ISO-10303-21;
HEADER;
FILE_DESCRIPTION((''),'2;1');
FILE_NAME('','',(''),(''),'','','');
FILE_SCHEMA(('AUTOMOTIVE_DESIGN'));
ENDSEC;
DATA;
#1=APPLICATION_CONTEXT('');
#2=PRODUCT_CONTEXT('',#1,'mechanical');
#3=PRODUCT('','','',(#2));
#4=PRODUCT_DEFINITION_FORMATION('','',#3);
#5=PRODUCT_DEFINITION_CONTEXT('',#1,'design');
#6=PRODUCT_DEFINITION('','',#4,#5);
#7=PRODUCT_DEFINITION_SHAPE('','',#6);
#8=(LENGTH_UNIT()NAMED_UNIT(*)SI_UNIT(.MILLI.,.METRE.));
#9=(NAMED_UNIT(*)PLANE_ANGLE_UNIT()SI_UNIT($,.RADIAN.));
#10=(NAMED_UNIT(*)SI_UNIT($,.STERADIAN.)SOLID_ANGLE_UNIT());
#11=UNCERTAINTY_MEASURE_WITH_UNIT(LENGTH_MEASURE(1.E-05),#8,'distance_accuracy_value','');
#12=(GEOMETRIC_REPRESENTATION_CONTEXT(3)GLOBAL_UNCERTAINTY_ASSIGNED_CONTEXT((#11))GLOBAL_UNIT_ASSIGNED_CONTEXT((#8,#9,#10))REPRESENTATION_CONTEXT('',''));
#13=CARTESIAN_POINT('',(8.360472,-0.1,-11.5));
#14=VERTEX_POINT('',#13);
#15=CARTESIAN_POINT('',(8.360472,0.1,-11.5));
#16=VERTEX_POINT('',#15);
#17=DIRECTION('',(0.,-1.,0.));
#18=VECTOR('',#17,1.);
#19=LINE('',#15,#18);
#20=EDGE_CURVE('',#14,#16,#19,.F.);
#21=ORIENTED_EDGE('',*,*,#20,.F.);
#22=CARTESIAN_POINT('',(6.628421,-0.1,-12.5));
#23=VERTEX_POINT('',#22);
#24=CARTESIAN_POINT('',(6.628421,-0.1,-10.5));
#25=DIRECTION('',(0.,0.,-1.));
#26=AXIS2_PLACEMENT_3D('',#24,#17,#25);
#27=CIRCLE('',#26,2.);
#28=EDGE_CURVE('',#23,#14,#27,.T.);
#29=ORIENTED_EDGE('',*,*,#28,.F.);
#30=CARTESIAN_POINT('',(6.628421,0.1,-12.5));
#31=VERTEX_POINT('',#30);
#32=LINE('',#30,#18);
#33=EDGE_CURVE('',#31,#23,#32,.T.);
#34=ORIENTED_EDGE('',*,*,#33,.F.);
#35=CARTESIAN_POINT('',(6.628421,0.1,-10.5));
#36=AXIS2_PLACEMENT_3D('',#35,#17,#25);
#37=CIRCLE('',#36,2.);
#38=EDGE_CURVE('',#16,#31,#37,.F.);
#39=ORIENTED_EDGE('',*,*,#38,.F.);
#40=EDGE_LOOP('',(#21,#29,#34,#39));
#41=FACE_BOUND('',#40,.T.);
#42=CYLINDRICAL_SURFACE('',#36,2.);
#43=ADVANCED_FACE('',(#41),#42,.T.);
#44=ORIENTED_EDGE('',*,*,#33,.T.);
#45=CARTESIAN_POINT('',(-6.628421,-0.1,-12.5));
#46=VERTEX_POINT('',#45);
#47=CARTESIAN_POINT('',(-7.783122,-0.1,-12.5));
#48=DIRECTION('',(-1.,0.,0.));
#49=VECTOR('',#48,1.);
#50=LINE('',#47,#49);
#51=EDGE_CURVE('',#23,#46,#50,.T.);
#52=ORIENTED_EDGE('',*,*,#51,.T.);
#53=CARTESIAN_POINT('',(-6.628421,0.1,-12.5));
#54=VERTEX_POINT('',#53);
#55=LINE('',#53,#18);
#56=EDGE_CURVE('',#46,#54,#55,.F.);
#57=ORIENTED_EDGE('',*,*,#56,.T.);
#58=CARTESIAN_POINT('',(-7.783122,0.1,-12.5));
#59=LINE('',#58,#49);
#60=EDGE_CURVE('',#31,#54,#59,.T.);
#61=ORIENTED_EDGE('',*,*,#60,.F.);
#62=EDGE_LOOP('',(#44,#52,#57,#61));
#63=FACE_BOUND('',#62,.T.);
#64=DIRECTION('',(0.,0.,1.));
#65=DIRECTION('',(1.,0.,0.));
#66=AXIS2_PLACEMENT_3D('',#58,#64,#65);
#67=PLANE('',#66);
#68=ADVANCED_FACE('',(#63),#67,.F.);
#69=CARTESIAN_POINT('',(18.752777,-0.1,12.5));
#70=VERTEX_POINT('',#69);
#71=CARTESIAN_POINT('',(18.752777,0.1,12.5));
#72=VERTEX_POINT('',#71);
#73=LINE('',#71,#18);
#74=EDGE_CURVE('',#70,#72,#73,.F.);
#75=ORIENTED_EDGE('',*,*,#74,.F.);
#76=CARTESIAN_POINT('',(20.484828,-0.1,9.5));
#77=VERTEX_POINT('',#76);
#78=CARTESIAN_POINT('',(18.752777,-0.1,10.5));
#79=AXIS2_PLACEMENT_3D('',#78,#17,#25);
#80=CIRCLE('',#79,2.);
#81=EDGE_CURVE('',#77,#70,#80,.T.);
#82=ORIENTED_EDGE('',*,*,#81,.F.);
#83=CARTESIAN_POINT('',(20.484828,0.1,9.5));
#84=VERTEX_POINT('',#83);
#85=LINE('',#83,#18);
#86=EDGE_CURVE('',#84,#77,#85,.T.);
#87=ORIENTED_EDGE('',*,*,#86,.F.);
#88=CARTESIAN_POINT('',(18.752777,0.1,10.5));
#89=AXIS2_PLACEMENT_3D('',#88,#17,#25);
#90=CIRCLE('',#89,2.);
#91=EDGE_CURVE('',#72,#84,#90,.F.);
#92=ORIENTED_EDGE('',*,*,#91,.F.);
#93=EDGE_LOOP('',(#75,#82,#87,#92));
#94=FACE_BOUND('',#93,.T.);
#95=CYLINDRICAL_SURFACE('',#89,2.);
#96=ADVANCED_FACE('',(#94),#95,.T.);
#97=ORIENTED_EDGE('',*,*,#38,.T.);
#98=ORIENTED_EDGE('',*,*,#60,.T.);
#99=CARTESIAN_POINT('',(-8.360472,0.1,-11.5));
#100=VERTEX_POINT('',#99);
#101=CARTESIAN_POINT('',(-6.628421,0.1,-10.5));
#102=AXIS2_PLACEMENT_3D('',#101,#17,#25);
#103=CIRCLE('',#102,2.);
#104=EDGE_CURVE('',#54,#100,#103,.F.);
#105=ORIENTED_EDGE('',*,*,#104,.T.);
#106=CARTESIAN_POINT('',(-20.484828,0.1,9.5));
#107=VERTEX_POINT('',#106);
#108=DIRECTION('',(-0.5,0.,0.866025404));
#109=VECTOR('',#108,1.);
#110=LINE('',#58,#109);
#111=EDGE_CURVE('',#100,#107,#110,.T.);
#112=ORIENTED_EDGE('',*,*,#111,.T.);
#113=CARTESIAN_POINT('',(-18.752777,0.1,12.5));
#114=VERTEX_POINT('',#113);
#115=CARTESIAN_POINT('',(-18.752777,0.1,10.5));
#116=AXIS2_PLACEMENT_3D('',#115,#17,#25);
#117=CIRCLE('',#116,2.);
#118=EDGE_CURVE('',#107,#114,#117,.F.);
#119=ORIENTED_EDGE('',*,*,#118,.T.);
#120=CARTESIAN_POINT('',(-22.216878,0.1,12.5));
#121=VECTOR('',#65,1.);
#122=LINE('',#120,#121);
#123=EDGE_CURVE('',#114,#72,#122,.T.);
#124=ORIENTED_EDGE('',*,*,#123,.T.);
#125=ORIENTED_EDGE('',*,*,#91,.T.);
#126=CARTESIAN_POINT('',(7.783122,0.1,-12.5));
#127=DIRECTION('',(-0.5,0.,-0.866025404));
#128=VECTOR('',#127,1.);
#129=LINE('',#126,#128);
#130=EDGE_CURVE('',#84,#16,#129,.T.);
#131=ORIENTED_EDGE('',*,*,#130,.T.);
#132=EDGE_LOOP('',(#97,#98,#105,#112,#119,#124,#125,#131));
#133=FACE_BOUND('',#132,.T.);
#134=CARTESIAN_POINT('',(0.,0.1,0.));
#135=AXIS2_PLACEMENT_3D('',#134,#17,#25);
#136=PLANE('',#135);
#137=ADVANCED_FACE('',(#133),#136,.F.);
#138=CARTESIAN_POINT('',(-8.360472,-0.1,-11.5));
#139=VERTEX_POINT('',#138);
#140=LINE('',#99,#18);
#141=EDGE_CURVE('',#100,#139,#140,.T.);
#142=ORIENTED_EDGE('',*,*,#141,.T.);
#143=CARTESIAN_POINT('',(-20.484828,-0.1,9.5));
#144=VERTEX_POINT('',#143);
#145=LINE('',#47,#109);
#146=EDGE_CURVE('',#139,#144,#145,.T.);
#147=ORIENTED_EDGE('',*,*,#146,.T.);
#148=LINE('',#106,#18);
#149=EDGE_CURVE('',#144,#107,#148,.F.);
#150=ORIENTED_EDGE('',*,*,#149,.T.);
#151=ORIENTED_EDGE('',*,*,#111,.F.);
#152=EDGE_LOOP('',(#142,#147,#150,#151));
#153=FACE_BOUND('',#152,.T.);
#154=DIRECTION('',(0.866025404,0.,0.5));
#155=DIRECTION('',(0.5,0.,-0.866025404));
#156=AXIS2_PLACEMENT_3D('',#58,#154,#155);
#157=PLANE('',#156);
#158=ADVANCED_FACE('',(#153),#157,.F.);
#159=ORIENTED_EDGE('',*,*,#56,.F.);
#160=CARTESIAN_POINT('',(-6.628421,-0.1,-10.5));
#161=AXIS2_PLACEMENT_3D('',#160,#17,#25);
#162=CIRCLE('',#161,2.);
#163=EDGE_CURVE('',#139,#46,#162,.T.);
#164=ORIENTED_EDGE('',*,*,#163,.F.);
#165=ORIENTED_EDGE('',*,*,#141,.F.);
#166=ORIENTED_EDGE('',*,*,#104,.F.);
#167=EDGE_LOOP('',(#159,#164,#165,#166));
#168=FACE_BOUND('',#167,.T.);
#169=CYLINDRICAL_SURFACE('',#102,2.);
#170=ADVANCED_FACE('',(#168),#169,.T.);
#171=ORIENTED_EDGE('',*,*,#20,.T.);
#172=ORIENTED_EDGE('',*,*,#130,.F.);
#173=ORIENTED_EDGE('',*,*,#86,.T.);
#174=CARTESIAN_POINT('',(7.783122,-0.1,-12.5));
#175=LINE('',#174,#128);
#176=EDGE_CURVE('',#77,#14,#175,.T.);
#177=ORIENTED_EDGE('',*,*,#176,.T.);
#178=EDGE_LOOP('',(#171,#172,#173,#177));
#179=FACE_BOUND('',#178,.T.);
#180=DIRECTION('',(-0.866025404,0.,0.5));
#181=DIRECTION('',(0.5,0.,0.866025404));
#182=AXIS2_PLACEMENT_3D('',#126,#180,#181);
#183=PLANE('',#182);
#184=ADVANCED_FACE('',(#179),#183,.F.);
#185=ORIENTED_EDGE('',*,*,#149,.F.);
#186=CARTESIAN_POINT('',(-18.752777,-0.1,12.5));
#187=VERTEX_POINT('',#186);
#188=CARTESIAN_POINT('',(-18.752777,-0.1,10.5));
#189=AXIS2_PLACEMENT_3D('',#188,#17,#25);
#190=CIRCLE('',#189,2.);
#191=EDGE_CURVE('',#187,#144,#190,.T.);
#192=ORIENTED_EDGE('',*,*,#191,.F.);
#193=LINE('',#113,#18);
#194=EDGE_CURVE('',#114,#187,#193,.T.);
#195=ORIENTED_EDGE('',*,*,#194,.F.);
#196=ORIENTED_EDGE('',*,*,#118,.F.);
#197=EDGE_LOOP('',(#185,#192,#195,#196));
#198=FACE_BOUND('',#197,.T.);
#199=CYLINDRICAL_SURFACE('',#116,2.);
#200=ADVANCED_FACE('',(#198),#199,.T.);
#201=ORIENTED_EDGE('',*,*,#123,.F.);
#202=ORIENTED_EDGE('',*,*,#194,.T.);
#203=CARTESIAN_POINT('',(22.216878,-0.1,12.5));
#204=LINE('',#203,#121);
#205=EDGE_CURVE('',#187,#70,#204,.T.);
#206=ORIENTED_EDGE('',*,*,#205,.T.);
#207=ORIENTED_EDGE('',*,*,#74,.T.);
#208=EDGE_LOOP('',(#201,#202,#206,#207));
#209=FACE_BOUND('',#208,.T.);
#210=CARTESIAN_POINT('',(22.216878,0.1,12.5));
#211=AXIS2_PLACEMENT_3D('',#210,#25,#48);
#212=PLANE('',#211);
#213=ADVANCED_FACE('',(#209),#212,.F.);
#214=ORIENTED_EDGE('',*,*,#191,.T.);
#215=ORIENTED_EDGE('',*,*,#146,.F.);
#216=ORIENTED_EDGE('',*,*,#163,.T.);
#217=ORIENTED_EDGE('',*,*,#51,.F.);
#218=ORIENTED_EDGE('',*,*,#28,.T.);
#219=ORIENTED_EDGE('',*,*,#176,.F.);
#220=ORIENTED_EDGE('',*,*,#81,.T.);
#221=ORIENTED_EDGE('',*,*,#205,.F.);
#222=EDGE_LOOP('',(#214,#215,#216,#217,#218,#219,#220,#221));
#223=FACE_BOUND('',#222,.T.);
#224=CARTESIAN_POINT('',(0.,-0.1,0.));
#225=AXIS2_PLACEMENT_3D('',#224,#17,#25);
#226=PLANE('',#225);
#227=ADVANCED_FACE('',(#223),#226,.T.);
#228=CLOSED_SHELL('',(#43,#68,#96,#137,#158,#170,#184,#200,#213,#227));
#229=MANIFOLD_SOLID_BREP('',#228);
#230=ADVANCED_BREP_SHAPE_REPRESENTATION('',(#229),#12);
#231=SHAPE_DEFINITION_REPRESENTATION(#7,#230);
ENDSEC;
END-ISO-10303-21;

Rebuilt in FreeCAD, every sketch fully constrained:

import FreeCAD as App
import Part
import Sketcher

V = App.Vector
Q = App.Units.Quantity


def edges_at(feature, points):
    """Names of the edges that pass closest to the given points."""
    edges = feature.Shape.Edges
    near = lambda p: min(range(len(edges)), key=lambda i: edges[i].distToShape(Part.Vertex(*p))[0])
    return sorted({f"Edge{near(p) + 1}" for p in points})


def add_polygon(sketch, points):
    """Adds a closed chain of lines whose ends are joined by coincident constraints."""
    first, n = sketch.GeometryCount, len(points)
    for a, b in zip(points, points[1:] + points[:1]):
        sketch.addGeometry(Part.LineSegment(App.Vector(*a, 0), App.Vector(*b, 0)), False)
    for i in range(n):
        sketch.addConstraint(Sketcher.Constraint("Coincident", first + i, 2, first + (i + 1) % n, 1))

doc = App.newDocument("Part")
body = doc.addObject("PartDesign::Body", "Body")

# Sketch on XZ plane
sketch1 = doc.addObject("Sketcher::SketchObject", "Sketch")
body.addObject(sketch1)
sketch1.AttachmentSupport = (doc.XZ_Plane, [""])
sketch1.MapMode = "FlatFace"
add_polygon(sketch1, [(22, 12), (8, -12), (-8, -12), (-22, 12)])  # lines 0-3
sketch1.addConstraint([
    Sketcher.Constraint("Horizontal", 1),
    Sketcher.Constraint("Horizontal", 3),
    Sketcher.Constraint("Equal", 0, 2),
    Sketcher.Constraint("Angle", 0, Q("-120 deg")),
    Sketcher.Constraint("DistanceY", 1, 2, 2, 2, Q("25 mm")),
    Sketcher.Constraint("DistanceX", 2, 2, 0, 2, Q("30 mm")),
    Sketcher.Constraint("DistanceY", 0, 2, -1, 1, Q("12.5 mm")),
    Sketcher.Constraint("DistanceX", -1, 1, 0, 2, Q("7.783122 mm")),
])
pad1 = doc.addObject("PartDesign::Pad", "Pad")
body.addObject(pad1)
pad1.Profile = sketch1
pad1.Length = 0.2
pad1.Midplane = True
doc.recompute()

fillet = doc.addObject("PartDesign::Fillet", "Fillet")
body.addObject(fillet)
fillet.Base = (pad1, edges_at(pad1, [
    (-22.217, 0, 12.5),
    (-7.783, 0, -12.5),
    (7.783, 0, -12.5),
    (22.217, 0, 12.5),
]))
fillet.Radius = 2

doc.recompute()
